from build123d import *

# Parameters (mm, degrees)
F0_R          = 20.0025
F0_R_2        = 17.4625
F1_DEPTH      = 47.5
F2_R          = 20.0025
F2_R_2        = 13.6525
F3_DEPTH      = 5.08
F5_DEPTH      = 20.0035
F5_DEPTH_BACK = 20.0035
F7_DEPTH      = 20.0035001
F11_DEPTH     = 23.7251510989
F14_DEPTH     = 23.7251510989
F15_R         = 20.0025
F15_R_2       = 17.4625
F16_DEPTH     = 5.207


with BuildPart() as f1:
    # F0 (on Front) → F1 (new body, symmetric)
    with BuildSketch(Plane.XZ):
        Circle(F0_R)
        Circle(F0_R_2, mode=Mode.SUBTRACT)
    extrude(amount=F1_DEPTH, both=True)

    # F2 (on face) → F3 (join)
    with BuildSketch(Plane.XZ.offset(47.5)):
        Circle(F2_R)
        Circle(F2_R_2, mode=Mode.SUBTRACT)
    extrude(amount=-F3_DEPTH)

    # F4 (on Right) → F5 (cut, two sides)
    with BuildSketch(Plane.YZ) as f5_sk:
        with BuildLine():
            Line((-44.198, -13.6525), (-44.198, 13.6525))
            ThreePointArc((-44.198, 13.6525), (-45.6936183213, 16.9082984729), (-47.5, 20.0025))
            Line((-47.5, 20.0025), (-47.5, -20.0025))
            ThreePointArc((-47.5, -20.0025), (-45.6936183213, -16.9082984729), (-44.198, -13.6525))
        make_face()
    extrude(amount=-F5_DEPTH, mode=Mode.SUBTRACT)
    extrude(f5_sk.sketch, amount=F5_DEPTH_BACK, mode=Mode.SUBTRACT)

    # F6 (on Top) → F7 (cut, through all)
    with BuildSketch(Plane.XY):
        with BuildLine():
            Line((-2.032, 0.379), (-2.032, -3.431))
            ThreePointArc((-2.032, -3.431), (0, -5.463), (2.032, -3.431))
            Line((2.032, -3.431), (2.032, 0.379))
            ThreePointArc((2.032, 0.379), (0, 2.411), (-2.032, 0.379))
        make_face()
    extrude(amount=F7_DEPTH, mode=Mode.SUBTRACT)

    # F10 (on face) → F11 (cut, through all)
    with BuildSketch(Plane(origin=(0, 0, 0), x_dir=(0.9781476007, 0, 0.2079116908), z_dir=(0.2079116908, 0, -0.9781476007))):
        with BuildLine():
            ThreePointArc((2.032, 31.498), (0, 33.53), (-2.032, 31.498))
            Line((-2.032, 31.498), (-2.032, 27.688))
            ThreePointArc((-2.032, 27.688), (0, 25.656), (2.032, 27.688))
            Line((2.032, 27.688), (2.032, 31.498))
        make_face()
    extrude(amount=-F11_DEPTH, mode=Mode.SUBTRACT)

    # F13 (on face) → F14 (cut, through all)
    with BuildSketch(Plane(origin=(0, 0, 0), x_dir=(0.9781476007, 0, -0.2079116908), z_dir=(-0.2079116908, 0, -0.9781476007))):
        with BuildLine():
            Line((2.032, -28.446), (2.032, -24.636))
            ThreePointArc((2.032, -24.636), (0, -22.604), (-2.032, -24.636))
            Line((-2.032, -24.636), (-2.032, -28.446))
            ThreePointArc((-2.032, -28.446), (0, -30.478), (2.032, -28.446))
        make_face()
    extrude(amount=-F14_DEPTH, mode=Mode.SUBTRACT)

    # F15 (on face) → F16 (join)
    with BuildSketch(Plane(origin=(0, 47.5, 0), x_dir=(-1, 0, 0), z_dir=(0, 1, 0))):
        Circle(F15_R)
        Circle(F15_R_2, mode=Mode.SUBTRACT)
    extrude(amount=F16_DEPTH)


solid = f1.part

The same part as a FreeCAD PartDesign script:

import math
import FreeCAD as App
import Part
import Sketcher
Q = App.Units.Quantity

doc = App.newDocument("Part")
params = doc.addObject("Spreadsheet::Sheet", "Params")
for row, (alias, value) in enumerate([
    ("sketch1_diameter", "1.575 in"),
    ("sketch1_diameter2", "1.375 in"),
    ("pad1_length", "95 mm"),
    ("sketch2_diameter", "1.575 in"),
    ("sketch2_diameter2", "1.075 in"),
    ("pad2_length", "0.2 in"),
    ("sketch3_height", "1.075 in"),
    ("sketch3_height2", "1.575 in"),
    ("sketch4_radius", "0.08 in"),
    ("sketch4_height", "0.15 in"),
    ("sketch5_radius", "0.08 in"),
    ("sketch5_height", "0.15 in"),
    ("sketch6_radius", "0.08 in"),
    ("sketch6_height", "0.15 in"),
    ("sketch7_diameter", "1.575 in"),
    ("sketch7_diameter2", "1.375 in"),
    ("pad3_length", "0.205 in"),
], start=1):
    params.set(f"A{row}", alias)
    params.set(f"B{row}", "=" + value)
    params.setAlias(f"B{row}", alias)

body = doc.addObject("PartDesign::Body", "Body")

sketch1 = body.newObject("Sketcher::SketchObject", "Sketch")
sketch1.AttachmentSupport = (doc.getObject("XZ_Plane"), [""])
sketch1.MapMode = "FlatFace"
sketch1.addGeometry(Part.Circle(App.Vector(0, 0, 0), App.Vector(0, 0, 1), 20.0025), False)
sketch1.addGeometry(Part.Circle(App.Vector(0, 0, 0), App.Vector(0, 0, 1), 17.4625), False)
sketch1.addConstraint(Sketcher.Constraint("Coincident", 0, 3, -1, 1))
sketch1.addConstraint(Sketcher.Constraint("Coincident", 1, 3, -1, 1))
sketch1.addConstraint(Sketcher.Constraint("Diameter", 0, Q("1.575 in")))
sketch1.addConstraint(Sketcher.Constraint("Diameter", 1, Q("1.375 in")))
sketch1.setExpression("Constraints[2]", "Params.sketch1_diameter")
sketch1.setExpression("Constraints[3]", "Params.sketch1_diameter2")
pad1 = body.newObject("PartDesign::Pad", "Pad")
pad1.Profile = sketch1
pad1.setExpression("Length", "Params.pad1_length")
pad1.Midplane = True

sketch2 = body.newObject("Sketcher::SketchObject", "Sketch001")
sketch2.AttachmentSupport = (doc.getObject("XZ_Plane"), [""])
sketch2.MapMode = "FlatFace"
sketch2.AttachmentOffset = App.Placement(App.Vector(0, 0, 47.5), App.Rotation())
sketch2.addGeometry(Part.Circle(App.Vector(0, 0, 0), App.Vector(0, 0, 1), 20.0025), False)
sketch2.addGeometry(Part.Circle(App.Vector(0, 0, 0), App.Vector(0, 0, 1), 13.6525), False)
sketch2.addConstraint(Sketcher.Constraint("Coincident", 0, 3, -1, 1))
sketch2.addConstraint(Sketcher.Constraint("Coincident", 1, 3, -1, 1))
sketch2.addConstraint(Sketcher.Constraint("Diameter", 0, Q("1.575 in")))
sketch2.addConstraint(Sketcher.Constraint("Diameter", 1, Q("1.075 in")))
sketch2.setExpression("Constraints[2]", "Params.sketch2_diameter")
sketch2.setExpression("Constraints[3]", "Params.sketch2_diameter2")
pad2 = body.newObject("PartDesign::Pad", "Pad001")
pad2.Profile = sketch2
pad2.setExpression("Length", "Params.pad2_length")
pad2.Reversed = True

sketch3 = body.newObject("Sketcher::SketchObject", "Sketch002")
sketch3.AttachmentSupport = (doc.getObject("YZ_Plane"), [""])
sketch3.MapMode = "FlatFace"
sketch3.addGeometry(Part.LineSegment(App.Vector(-44.198, -13.6525, 0), App.Vector(-44.198, 13.6525, 0)), False)
sketch3.addGeometry(Part.ArcOfCircle(Part.Circle(App.Vector(-78.209577, 0, 0), App.Vector(0, 0, 1), 36.649395), math.radians(21.870893), math.radians(33.07797)), False)
sketch3.addGeometry(Part.LineSegment(App.Vector(-47.5, 20.0025, 0), App.Vector(-47.5, -20.0025, 0)), False)
sketch3.addGeometry(Part.ArcOfCircle(Part.Circle(App.Vector(-78.209577, 0, 0), App.Vector(0, 0, 1), 36.649395), math.radians(-33.07797), math.radians(-21.870893)), False)
sketch3.addConstraint(Sketcher.Constraint("Coincident", 0, 2, 1, 1))
sketch3.addConstraint(Sketcher.Constraint("Coincident", 1, 2, 2, 1))
sketch3.addConstraint(Sketcher.Constraint("Coincident", 2, 2, 3, 1))
sketch3.addConstraint(Sketcher.Constraint("Coincident", 3, 2, 0, 1))
sketch3.addConstraint(Sketcher.Constraint("Vertical", 0))
sketch3.addConstraint(Sketcher.Constraint("Vertical", 2))
sketch3.addConstraint(Sketcher.Constraint("Coincident", 3, 3, 1, 3))
sketch3.addConstraint(Sketcher.Constraint("Equal", 1, 3))
sketch3.addConstraint(Sketcher.Constraint("PointOnObject", 1, 3, -1))
sketch3.addConstraint(Sketcher.Constraint("DistanceY", 0, 1, 0, 2, Q("1.075 in")))
sketch3.addConstraint(Sketcher.Constraint("DistanceY", 2, 2, 2, 1, Q("1.575 in")))
sketch3.addConstraint(Sketcher.Constraint("DistanceX", 1, 2, 0, 2, Q("0.13 in")))
sketch3.addConstraint(Sketcher.Constraint("DistanceX", 0, 2, -1, 1, 44.198))
sketch3.setExpression("Constraints[9]", "Params.sketch3_height")
sketch3.setExpression("Constraints[10]", "Params.sketch3_height2")
pocket1 = body.newObject("PartDesign::Pocket", "Pocket")
pocket1.Profile = sketch3
pocket1.Type = "ThroughAll"
pocket1.Midplane = True

sketch4 = body.newObject("Sketcher::SketchObject", "Sketch003")
sketch4.AttachmentSupport = (doc.getObject("XY_Plane"), [""])
sketch4.MapMode = "FlatFace"
sketch4.addGeometry(Part.LineSegment(App.Vector(-2.032, 0.379, 0), App.Vector(-2.032, -3.431, 0)), False)
sketch4.addGeometry(Part.ArcOfCircle(Part.Circle(App.Vector(0, -3.431, 0), App.Vector(0, 0, 1), 2.032), math.radians(180), math.radians(360)), False)
sketch4.addGeometry(Part.LineSegment(App.Vector(2.032, -3.431, 0), App.Vector(2.032, 0.379, 0)), False)
sketch4.addGeometry(Part.ArcOfCircle(Part.Circle(App.Vector(0, 0.379, 0), App.Vector(0, 0, 1), 2.032), math.radians(0), math.radians(180)), False)
sketch4.addConstraint(Sketcher.Constraint("Tangent", 0, 2, 1, 1))
sketch4.addConstraint(Sketcher.Constraint("Tangent", 1, 2, 2, 1))
sketch4.addConstraint(Sketcher.Constraint("Tangent", 2, 2, 3, 1))
sketch4.addConstraint(Sketcher.Constraint("Tangent", 3, 2, 0, 1))
sketch4.addConstraint(Sketcher.Constraint("Vertical", 0))
sketch4.addConstraint(Sketcher.Constraint("Vertical", 2))
sketch4.addConstraint(Sketcher.Constraint("PointOnObject", 1, 3, -2))
sketch4.addConstraint(Sketcher.Constraint("Radius", 1, Q("0.08 in")))
sketch4.addConstraint(Sketcher.Constraint("DistanceY", 0, 2, 0, 1, Q("0.15 in")))
sketch4.addConstraint(Sketcher.Constraint("DistanceY", 1, 3, -1, 1, 3.431))
sketch4.setExpression("Constraints[7]", "Params.sketch4_radius")
sketch4.setExpression("Constraints[8]", "Params.sketch4_height")
pocket2 = body.newObject("PartDesign::Pocket", "Pocket001")
pocket2.Profile = sketch4
pocket2.Type = "ThroughAll"
pocket2.Reversed = True

sketch5 = body.newObject("Sketcher::SketchObject", "Sketch004")
sketch5.Placement = App.Placement(App.Vector(0, 0, 0), App.Rotation(App.Vector(0.978147601, 0, 0.207911691), App.Vector(0, -1.000000001, 0), App.Vector(0.207911691, 0, -0.978147601), "ZXY"))
sketch5.addGeometry(Part.ArcOfCircle(Part.Circle(App.Vector(0, 31.498, 0), App.Vector(0, 0, 1), 2.032), math.radians(0), math.radians(180)), False)
sketch5.addGeometry(Part.LineSegment(App.Vector(-2.032, 31.498, 0), App.Vector(-2.032, 27.688, 0)), False)
sketch5.addGeometry(Part.ArcOfCircle(Part.Circle(App.Vector(0, 27.688, 0), App.Vector(0, 0, 1), 2.032), math.radians(180), math.radians(360)), False)
sketch5.addGeometry(Part.LineSegment(App.Vector(2.032, 27.688, 0), App.Vector(2.032, 31.498, 0)), False)
sketch5.addConstraint(Sketcher.Constraint("Tangent", 0, 2, 1, 1))
sketch5.addConstraint(Sketcher.Constraint("Tangent", 1, 2, 2, 1))
sketch5.addConstraint(Sketcher.Constraint("Tangent", 2, 2, 3, 1))
sketch5.addConstraint(Sketcher.Constraint("Tangent", 3, 2, 0, 1))
sketch5.addConstraint(Sketcher.Constraint("Vertical", 1))
sketch5.addConstraint(Sketcher.Constraint("Vertical", 3))
sketch5.addConstraint(Sketcher.Constraint("PointOnObject", 0, 3, -2))
sketch5.addConstraint(Sketcher.Constraint("Radius", 0, Q("0.08 in")))
sketch5.addConstraint(Sketcher.Constraint("DistanceY", 1, 2, 1, 1, Q("0.15 in")))
sketch5.addConstraint(Sketcher.Constraint("DistanceY", -1, 1, 0, 3, 31.498))
sketch5.setExpression("Constraints[7]", "Params.sketch5_radius")
sketch5.setExpression("Constraints[8]", "Params.sketch5_height")
pocket3 = body.newObject("PartDesign::Pocket", "Pocket002")
pocket3.Profile = sketch5
pocket3.Type = "ThroughAll"

sketch6 = body.newObject("Sketcher::SketchObject", "Sketch005")
sketch6.Placement = App.Placement(App.Vector(0, 0, 0), App.Rotation(App.Vector(0.978147601, 0, -0.207911691), App.Vector(0, -1.000000001, 0), App.Vector(-0.207911691, 0, -0.978147601), "ZXY"))
sketch6.addGeometry(Part.LineSegment(App.Vector(2.032, -28.446, 0), App.Vector(2.032, -24.636, 0)), False)
sketch6.addGeometry(Part.ArcOfCircle(Part.Circle(App.Vector(0, -24.636, 0), App.Vector(0, 0, 1), 2.032), math.radians(0), math.radians(180)), False)
sketch6.addGeometry(Part.LineSegment(App.Vector(-2.032, -24.636, 0), App.Vector(-2.032, -28.446, 0)), False)
sketch6.addGeometry(Part.ArcOfCircle(Part.Circle(App.Vector(0, -28.446, 0), App.Vector(0, 0, 1), 2.032), math.radians(180), math.radians(360)), False)
sketch6.addConstraint(Sketcher.Constraint("Tangent", 0, 2, 1, 1))
sketch6.addConstraint(Sketcher.Constraint("Tangent", 1, 2, 2, 1))
sketch6.addConstraint(Sketcher.Constraint("Tangent", 2, 2, 3, 1))
sketch6.addConstraint(Sketcher.Constraint("Tangent", 3, 2, 0, 1))
sketch6.addConstraint(Sketcher.Constraint("Vertical", 0))
sketch6.addConstraint(Sketcher.Constraint("Vertical", 2))
sketch6.addConstraint(Sketcher.Constraint("PointOnObject", 1, 3, -2))
sketch6.addConstraint(Sketcher.Constraint("Radius", 1, Q("0.08 in")))
sketch6.addConstraint(Sketcher.Constraint("DistanceY", 0, 1, 0, 2, Q("0.15 in")))
sketch6.addConstraint(Sketcher.Constraint("DistanceY", 1, 3, -1, 1, 24.636))
sketch6.setExpression("Constraints[7]", "Params.sketch6_radius")
sketch6.setExpression("Constraints[8]", "Params.sketch6_height")
pocket4 = body.newObject("PartDesign::Pocket", "Pocket003")
pocket4.Profile = sketch6
pocket4.Type = "ThroughAll"

sketch7 = body.newObject("Sketcher::SketchObject", "Sketch006")
sketch7.AttachmentSupport = (doc.getObject("XZ_Plane"), [""])
sketch7.MapMode = "FlatFace"
sketch7.AttachmentOffset = App.Placement(App.Vector(0, 0, -47.5), App.Rotation())
sketch7.addGeometry(Part.Circle(App.Vector(0, 0, 0), App.Vector(0, 0, 1), 20.0025), False)
sketch7.addGeometry(Part.Circle(App.Vector(0, 0, 0), App.Vector(0, 0, 1), 17.4625), False)
sketch7.addConstraint(Sketcher.Constraint("Coincident", 0, 3, -1, 1))
sketch7.addConstraint(Sketcher.Constraint("Coincident", 1, 3, -1, 1))
sketch7.addConstraint(Sketcher.Constraint("Diameter", 0, Q("1.575 in")))
sketch7.addConstraint(Sketcher.Constraint("Diameter", 1, Q("1.375 in")))
sketch7.setExpression("Constraints[2]", "Params.sketch7_diameter")
sketch7.setExpression("Constraints[3]", "Params.sketch7_diameter2")
pad3 = body.newObject("PartDesign::Pad", "Pad002")
pad3.Profile = sketch7
pad3.setExpression("Length", "Params.pad3_length")
pad3.Reversed = True

doc.recompute()
